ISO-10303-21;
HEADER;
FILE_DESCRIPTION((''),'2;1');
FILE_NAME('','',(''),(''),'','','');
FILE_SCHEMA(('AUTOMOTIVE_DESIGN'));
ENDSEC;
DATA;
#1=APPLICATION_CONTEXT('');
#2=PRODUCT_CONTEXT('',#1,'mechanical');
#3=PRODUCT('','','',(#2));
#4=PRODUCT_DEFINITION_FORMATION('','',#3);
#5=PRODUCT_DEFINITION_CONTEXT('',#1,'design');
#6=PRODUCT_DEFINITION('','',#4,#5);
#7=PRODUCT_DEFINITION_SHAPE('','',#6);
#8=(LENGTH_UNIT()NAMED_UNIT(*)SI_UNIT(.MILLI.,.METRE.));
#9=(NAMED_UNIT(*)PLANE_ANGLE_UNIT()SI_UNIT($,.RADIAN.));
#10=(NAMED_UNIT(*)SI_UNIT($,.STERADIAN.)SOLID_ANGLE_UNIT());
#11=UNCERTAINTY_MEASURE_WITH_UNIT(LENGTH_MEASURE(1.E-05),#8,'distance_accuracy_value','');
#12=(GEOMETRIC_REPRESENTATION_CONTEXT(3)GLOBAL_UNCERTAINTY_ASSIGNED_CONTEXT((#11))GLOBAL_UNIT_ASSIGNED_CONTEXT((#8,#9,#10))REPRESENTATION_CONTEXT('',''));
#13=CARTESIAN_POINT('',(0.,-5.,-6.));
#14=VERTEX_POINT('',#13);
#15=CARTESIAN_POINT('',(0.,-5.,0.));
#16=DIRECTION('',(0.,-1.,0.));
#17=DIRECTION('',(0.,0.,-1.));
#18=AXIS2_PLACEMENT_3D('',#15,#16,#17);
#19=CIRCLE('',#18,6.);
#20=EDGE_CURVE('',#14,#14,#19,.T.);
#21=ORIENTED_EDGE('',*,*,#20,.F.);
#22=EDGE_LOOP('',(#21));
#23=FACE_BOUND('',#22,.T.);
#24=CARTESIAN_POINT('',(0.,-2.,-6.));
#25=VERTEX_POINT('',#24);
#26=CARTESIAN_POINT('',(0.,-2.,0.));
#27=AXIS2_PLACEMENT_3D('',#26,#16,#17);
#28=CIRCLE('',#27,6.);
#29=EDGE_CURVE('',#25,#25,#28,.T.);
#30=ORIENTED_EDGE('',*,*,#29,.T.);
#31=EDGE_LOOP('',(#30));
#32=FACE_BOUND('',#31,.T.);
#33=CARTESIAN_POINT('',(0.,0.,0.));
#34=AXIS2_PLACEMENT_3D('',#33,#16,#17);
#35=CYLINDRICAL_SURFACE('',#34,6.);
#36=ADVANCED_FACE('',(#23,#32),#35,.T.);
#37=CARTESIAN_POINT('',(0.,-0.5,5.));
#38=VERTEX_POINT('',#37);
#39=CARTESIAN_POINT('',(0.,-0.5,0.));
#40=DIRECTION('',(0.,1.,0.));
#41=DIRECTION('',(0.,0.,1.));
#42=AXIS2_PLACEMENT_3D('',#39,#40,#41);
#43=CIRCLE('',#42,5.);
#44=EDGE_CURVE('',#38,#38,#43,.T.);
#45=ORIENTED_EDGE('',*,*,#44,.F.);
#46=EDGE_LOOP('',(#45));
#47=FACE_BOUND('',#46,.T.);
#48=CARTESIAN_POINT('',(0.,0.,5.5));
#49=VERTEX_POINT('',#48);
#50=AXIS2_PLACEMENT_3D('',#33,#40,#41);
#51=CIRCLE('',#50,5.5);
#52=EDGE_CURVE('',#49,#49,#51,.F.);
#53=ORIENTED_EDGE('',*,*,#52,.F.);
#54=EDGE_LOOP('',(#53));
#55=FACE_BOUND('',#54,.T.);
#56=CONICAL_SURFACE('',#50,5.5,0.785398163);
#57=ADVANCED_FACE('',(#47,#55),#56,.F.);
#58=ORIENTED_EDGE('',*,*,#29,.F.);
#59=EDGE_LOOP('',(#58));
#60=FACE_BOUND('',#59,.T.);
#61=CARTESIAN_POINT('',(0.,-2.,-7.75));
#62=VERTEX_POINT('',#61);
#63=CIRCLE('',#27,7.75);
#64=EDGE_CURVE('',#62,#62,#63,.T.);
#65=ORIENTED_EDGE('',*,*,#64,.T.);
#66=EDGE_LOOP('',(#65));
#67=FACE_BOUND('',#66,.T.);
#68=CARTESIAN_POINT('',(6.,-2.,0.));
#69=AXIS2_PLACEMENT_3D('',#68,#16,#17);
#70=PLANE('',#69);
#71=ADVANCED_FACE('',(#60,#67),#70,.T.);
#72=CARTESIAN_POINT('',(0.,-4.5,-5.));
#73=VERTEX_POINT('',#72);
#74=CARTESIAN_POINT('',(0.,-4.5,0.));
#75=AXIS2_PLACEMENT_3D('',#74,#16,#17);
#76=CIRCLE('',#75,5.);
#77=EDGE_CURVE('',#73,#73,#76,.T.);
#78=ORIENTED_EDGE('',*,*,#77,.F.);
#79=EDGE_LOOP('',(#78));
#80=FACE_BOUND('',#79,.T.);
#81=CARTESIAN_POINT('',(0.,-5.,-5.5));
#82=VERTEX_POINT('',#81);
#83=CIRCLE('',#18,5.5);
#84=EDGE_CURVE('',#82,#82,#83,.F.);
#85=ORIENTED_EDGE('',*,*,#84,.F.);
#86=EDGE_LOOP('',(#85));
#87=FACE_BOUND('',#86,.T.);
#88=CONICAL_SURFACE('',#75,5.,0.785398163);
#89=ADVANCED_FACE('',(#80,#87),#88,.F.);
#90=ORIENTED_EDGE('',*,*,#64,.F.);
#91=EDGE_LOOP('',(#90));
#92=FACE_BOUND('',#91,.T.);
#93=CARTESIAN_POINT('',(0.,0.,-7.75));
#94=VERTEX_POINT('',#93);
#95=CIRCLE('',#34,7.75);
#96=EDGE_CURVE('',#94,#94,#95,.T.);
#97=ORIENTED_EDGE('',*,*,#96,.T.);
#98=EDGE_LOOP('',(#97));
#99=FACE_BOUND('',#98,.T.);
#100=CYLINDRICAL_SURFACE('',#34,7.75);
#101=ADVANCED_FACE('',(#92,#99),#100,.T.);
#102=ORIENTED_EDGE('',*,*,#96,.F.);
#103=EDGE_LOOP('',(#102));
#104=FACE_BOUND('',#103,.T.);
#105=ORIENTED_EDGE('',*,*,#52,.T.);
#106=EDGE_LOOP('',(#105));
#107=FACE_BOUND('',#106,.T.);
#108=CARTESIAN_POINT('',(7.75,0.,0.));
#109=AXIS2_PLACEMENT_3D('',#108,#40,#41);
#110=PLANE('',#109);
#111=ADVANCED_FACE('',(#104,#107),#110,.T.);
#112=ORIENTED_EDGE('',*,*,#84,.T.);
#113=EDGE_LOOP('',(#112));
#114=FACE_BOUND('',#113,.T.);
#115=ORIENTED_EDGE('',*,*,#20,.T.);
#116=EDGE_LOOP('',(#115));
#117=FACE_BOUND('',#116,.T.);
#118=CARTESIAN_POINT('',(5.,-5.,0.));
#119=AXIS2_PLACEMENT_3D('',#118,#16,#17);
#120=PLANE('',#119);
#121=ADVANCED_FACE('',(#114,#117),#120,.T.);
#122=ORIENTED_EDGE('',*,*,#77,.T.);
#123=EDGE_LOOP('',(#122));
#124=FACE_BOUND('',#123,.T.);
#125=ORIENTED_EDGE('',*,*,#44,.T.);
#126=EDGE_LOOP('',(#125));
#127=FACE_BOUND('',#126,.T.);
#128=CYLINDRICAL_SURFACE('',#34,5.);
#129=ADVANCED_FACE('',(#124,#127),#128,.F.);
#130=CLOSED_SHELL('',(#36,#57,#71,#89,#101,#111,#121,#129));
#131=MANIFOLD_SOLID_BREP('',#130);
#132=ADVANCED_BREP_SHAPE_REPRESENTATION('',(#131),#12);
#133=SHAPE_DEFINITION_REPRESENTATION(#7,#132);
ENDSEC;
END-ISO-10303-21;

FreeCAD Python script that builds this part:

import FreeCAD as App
import Part
import Sketcher
from FreeCAD import Vector


def edges_at(feature, points):
    """Names of the edges that pass closest to the given points."""
    edges = feature.Shape.Edges
    near = lambda p: min(range(len(edges)), key=lambda i: edges[i].distToShape(Part.Vertex(*p))[0])
    return sorted({f"Edge{near(p) + 1}" for p in points})

doc = App.newDocument("Part")
body = doc.addObject("PartDesign::Body", "Body")

sketch1 = body.newObject("Sketcher::SketchObject", "Sketch")
sketch1.AttachmentSupport = (doc.getObject("XY_Plane"), [""])
sketch1.MapMode = "FlatFace"
sketch1.addGeometry(Part.LineSegment(Vector(5, 0, 0), Vector(5, -5, 0)), False)
sketch1.addGeometry(Part.LineSegment(Vector(5, -5, 0), Vector(6, -5, 0)), False)
sketch1.addGeometry(Part.LineSegment(Vector(6, -5, 0), Vector(6, -2, 0)), False)
sketch1.addGeometry(Part.LineSegment(Vector(6, -2, 0), Vector(7.8, -2, 0)), False)
sketch1.addGeometry(Part.LineSegment(Vector(7.8, -2, 0), Vector(7.8, 0, 0)), False)
sketch1.addGeometry(Part.LineSegment(Vector(7.8, 0, 0), Vector(5, 0, 0)), False)
sketch1.addConstraint(Sketcher.Constraint("Coincident", 0, 2, 1, 1))
sketch1.addConstraint(Sketcher.Constraint("Coincident", 1, 2, 2, 1))
sketch1.addConstraint(Sketcher.Constraint("Coincident", 2, 2, 3, 1))
sketch1.addConstraint(Sketcher.Constraint("Coincident", 3, 2, 4, 1))
sketch1.addConstraint(Sketcher.Constraint("Coincident", 4, 2, 5, 1))
sketch1.addConstraint(Sketcher.Constraint("Coincident", 5, 2, 0, 1))
sketch1.addConstraint(Sketcher.Constraint("Vertical", 0))
sketch1.addConstraint(Sketcher.Constraint("Horizontal", 1))
sketch1.addConstraint(Sketcher.Constraint("Vertical", 2))
sketch1.addConstraint(Sketcher.Constraint("Horizontal", 3))
sketch1.addConstraint(Sketcher.Constraint("Vertical", 4))
sketch1.addConstraint(Sketcher.Constraint("Horizontal", 5))
sketch1.addConstraint(Sketcher.Constraint("PointOnObject", 4, 2, -1))
sketch1.addConstraint(Sketcher.Constraint("DistanceX", 1, 1, 1, 2, 1.0))
sketch1.addConstraint(Sketcher.Constraint("DistanceY", 0, 2, 0, 1, 5.0))
sketch1.addConstraint(Sketcher.Constraint("DistanceY", 2, 1, 2, 2, 3.0))
sketch1.addConstraint(Sketcher.Constraint("DistanceX", -1, 1, 0, 2, 5.0))
sketch1.addConstraint(Sketcher.Constraint("DistanceX", 3, 1, 3, 2, 1.75))
revolution = body.newObject("PartDesign::Revolution", "Revolution")
revolution.Profile = sketch1
revolution.ReferenceAxis = (sketch1, ["V_Axis"])
revolution.Angle = 360
doc.recompute()

chamfer = body.newObject("PartDesign::Chamfer", "Chamfer")
chamfer.Base = (revolution, edges_at(revolution, [(0, 0, 5), (0, -5, 5)]))
chamfer.Size = 0.5

doc.recompute()
